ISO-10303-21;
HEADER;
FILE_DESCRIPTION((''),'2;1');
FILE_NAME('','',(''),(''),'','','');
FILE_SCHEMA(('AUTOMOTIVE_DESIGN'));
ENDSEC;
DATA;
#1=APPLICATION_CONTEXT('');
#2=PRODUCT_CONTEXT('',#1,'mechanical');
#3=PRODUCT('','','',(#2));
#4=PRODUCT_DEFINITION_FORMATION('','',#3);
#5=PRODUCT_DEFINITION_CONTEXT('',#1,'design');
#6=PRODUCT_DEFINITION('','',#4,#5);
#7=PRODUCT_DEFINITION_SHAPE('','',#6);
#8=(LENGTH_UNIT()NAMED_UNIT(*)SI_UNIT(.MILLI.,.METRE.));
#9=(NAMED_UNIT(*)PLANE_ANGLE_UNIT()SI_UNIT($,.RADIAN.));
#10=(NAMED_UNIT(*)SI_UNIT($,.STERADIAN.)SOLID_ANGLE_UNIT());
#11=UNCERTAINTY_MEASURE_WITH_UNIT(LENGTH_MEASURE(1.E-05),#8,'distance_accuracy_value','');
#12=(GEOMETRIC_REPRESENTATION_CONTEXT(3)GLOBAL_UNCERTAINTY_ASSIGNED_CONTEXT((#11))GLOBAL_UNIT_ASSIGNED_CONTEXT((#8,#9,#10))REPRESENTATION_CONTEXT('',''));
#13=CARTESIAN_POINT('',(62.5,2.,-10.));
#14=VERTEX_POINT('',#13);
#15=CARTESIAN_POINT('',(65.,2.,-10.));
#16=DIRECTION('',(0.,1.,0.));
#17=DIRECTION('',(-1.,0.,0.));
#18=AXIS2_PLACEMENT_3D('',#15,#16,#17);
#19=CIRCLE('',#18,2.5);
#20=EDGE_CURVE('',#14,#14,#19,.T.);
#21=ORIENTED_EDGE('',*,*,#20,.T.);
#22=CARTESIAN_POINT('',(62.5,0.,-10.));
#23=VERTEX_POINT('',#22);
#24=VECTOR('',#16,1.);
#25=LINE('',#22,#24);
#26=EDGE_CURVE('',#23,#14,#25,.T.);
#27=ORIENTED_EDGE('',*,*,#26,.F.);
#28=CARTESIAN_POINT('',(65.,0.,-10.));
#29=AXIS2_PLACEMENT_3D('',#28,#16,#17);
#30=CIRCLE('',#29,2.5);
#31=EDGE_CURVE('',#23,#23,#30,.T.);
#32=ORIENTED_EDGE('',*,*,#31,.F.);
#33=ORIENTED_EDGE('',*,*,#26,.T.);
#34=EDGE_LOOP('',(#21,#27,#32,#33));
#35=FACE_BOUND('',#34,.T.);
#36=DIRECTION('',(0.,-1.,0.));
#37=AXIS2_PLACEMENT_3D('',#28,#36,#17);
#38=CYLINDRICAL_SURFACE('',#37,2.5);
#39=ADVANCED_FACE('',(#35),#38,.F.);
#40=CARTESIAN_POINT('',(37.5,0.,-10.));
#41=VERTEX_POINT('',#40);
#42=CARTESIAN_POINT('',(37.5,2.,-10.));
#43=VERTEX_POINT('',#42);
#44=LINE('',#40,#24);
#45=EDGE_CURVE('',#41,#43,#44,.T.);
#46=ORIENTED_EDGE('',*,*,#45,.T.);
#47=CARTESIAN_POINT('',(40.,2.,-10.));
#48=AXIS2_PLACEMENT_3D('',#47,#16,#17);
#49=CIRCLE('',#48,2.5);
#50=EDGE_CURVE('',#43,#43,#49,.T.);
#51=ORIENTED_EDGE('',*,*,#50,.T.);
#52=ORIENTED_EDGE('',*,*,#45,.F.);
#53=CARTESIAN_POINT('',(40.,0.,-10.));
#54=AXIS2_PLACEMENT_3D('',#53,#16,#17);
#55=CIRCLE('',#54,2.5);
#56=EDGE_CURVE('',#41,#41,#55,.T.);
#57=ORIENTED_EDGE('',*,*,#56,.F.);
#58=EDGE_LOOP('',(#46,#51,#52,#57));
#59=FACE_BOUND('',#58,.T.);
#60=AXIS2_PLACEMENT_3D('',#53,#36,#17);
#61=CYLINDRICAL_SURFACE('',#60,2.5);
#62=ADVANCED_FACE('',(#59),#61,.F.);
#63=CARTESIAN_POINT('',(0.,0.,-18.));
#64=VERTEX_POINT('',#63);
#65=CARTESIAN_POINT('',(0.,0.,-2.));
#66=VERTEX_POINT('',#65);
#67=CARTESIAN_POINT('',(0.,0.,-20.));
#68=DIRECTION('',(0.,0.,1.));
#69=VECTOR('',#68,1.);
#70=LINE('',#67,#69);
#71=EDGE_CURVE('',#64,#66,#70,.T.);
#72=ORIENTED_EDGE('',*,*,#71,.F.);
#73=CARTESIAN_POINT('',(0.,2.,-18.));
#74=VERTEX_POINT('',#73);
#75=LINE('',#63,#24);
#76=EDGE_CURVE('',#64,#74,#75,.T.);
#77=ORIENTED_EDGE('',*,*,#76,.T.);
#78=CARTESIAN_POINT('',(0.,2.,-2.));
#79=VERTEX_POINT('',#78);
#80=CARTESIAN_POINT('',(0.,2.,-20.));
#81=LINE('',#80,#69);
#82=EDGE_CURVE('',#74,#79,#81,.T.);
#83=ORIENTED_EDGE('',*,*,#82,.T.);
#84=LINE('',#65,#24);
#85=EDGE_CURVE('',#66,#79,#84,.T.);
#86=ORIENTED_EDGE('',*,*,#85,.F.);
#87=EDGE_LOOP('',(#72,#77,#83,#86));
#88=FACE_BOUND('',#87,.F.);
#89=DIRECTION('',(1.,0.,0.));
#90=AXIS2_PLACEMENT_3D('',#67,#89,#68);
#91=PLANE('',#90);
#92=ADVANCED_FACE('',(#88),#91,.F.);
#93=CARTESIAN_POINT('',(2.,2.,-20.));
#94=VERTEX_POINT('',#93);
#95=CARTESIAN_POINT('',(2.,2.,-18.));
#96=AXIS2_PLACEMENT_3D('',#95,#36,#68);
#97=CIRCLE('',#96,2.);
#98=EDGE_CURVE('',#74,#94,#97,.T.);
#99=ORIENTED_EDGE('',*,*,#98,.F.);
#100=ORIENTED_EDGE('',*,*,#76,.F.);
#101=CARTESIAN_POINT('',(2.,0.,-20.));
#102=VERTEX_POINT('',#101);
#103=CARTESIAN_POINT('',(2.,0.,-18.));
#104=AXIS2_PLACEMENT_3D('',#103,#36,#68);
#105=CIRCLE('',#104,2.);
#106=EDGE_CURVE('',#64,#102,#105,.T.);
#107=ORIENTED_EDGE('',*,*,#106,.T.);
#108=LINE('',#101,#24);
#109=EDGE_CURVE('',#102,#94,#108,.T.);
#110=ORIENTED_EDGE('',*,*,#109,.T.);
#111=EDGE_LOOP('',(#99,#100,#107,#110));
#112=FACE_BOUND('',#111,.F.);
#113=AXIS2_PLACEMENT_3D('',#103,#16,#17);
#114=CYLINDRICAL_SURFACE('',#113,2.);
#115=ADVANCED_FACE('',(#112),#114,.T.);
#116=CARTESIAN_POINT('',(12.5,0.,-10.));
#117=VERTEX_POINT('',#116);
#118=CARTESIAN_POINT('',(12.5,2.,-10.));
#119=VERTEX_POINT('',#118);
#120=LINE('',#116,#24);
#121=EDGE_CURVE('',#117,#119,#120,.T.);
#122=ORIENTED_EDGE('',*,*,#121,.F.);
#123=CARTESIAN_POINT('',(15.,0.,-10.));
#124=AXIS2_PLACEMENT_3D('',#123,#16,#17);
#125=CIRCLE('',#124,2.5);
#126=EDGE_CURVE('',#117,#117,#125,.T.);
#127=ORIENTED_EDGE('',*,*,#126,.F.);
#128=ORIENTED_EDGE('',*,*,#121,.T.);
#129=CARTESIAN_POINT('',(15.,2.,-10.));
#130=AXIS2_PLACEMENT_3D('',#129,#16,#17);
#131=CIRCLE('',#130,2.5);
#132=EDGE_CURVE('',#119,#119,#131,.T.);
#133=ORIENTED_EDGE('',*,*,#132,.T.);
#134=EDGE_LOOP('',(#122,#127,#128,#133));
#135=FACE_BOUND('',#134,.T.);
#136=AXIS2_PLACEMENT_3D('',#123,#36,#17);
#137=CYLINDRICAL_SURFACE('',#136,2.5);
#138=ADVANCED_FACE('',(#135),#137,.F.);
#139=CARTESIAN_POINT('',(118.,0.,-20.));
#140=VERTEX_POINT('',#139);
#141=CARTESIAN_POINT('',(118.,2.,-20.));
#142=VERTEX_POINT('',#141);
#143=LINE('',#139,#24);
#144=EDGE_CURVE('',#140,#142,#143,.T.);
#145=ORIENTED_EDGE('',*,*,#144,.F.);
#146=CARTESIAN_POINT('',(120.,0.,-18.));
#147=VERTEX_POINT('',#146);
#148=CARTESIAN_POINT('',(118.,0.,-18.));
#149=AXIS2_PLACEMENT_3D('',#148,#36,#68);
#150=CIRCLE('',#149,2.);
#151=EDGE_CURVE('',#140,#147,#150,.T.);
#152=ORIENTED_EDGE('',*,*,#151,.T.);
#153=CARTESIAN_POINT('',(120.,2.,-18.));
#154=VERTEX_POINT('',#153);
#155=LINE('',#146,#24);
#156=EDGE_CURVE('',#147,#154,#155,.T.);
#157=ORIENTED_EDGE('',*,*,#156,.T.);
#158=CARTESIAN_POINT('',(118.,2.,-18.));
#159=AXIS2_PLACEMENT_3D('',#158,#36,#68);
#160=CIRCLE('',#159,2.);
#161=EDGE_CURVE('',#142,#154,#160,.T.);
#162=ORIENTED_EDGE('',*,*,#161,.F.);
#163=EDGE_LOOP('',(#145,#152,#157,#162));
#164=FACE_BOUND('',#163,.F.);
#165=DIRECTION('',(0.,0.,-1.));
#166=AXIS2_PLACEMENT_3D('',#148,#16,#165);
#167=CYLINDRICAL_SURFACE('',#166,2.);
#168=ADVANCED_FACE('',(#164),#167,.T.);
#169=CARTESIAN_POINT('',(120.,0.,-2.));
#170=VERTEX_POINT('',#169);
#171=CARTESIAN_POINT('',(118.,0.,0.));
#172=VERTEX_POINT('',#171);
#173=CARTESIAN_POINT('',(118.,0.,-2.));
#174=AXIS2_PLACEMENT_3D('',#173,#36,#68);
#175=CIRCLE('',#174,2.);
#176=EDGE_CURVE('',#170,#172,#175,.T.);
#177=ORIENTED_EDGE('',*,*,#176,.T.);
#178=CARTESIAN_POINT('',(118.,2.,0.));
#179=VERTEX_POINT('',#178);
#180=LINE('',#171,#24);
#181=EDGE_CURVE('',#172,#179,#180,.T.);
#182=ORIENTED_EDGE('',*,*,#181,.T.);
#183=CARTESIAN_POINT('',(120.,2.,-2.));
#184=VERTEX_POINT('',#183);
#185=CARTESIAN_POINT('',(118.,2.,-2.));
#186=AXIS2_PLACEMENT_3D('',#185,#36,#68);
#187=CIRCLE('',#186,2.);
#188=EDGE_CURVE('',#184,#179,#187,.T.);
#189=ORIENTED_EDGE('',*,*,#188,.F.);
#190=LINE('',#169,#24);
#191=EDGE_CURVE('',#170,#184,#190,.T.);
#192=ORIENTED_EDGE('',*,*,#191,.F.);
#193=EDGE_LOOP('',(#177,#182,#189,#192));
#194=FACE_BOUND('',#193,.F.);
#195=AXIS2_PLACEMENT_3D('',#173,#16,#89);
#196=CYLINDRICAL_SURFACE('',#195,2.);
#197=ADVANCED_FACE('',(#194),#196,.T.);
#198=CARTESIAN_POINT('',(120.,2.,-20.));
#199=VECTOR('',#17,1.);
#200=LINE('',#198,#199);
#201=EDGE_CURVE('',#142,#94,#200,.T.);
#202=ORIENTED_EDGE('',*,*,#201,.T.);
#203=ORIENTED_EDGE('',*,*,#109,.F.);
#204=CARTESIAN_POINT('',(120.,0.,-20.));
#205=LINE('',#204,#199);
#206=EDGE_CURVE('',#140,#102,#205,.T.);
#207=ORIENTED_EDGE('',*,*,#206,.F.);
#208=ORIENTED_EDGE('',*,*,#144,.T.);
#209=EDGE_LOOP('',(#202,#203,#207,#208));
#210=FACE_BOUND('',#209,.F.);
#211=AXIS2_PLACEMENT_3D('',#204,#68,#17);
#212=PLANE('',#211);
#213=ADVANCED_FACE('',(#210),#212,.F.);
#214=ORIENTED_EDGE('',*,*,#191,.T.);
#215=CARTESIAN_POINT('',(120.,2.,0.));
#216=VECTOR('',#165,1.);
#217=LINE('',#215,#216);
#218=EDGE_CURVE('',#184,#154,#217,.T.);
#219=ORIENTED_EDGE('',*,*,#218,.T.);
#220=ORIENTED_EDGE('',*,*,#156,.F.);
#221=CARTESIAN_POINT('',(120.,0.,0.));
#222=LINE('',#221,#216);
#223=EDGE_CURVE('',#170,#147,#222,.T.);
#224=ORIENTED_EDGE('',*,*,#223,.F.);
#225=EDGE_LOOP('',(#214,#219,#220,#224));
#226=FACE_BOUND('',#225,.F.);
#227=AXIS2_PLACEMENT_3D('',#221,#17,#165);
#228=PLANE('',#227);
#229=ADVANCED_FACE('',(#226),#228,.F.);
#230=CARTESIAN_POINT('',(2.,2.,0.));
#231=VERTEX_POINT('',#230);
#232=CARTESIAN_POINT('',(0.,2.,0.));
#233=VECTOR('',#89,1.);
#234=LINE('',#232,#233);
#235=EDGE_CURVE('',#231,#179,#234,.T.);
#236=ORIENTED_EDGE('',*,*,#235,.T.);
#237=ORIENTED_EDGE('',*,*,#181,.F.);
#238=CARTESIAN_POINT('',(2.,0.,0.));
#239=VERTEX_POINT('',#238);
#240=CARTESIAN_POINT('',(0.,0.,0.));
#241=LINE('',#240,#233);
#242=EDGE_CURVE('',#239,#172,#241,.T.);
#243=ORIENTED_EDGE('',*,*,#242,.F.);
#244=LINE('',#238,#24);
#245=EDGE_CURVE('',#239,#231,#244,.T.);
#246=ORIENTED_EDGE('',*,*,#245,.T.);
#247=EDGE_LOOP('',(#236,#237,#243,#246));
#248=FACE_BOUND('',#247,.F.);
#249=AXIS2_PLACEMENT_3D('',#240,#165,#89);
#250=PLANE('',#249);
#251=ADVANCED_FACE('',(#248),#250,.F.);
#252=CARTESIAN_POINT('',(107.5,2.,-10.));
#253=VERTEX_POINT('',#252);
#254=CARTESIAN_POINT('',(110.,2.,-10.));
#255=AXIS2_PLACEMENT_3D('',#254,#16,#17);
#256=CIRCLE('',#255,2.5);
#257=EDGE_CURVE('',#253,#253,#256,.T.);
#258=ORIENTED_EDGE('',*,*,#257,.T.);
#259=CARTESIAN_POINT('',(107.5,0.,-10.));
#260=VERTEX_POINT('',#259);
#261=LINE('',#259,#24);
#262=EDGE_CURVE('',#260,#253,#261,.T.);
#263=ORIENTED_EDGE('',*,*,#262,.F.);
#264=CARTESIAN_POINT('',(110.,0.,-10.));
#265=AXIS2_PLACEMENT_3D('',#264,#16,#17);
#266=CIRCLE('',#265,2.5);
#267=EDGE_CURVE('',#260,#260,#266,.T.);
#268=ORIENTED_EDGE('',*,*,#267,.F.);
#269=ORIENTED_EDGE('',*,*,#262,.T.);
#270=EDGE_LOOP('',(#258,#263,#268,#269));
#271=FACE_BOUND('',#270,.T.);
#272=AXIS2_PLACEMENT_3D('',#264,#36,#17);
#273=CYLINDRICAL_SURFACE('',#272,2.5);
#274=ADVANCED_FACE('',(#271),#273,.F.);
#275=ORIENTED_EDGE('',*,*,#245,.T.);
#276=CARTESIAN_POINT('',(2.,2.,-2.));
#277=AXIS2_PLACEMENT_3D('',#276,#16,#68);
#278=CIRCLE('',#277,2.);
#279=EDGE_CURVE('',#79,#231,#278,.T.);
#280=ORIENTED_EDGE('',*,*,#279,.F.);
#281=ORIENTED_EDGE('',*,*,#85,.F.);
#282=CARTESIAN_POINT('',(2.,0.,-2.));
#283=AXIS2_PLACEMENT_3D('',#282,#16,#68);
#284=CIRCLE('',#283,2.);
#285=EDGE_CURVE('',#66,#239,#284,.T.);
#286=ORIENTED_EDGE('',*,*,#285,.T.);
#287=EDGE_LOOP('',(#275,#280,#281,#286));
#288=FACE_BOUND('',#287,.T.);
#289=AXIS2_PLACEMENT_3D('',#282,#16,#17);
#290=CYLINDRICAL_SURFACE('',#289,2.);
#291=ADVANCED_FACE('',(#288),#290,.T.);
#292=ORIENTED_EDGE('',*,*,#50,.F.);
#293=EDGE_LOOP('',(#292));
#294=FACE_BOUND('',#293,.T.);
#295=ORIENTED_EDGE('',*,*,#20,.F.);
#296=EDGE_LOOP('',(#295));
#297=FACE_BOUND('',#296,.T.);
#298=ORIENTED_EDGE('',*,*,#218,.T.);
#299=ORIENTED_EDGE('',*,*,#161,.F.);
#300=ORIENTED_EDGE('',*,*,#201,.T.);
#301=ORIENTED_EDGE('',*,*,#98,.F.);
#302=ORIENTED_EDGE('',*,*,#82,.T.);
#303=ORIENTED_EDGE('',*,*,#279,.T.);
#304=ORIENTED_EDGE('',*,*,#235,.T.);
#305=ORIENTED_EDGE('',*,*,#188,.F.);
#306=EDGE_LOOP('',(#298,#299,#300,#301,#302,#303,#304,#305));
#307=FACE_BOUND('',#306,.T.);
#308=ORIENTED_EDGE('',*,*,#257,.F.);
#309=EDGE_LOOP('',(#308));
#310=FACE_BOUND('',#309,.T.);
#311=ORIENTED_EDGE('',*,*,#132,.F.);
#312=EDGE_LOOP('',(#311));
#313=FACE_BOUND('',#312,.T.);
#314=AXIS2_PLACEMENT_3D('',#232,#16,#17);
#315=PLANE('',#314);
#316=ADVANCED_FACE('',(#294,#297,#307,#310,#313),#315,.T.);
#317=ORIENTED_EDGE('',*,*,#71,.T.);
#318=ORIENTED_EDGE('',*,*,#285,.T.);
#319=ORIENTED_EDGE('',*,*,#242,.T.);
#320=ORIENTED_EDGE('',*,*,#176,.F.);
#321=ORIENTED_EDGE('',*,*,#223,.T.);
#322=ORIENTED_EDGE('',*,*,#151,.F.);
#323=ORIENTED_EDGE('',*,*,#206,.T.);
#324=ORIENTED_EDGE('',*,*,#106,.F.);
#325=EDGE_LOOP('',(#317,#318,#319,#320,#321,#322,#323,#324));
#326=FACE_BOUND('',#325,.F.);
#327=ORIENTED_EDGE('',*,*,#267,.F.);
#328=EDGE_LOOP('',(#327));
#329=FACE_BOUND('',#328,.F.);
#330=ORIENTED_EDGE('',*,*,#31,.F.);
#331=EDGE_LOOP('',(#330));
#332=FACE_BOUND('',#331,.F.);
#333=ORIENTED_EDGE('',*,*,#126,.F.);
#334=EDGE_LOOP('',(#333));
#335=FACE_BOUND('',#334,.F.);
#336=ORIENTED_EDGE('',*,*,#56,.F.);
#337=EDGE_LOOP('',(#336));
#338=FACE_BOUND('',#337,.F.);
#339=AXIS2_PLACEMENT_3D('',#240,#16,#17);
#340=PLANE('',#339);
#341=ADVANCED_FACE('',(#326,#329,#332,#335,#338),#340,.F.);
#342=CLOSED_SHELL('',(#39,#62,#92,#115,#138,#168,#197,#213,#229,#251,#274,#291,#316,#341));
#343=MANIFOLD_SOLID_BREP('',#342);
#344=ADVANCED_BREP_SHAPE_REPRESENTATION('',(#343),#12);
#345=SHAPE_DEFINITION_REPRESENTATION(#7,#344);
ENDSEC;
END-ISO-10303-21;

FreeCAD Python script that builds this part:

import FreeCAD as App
import Part
import Sketcher

V = App.Vector


def edges_at(feature, points):
    """Names of the edges that pass closest to the given points."""
    edges = feature.Shape.Edges
    near = lambda p: min(range(len(edges)), key=lambda i: edges[i].distToShape(Part.Vertex(*p))[0])
    return sorted({f"Edge{near(p) + 1}" for p in points})

doc = App.newDocument("Part")
params = doc.addObject("Spreadsheet::Sheet", "Params")
for row, (alias, value) in enumerate([
    ("sketch1_diameter", "5 mm"),
    ("sketch1_width", "120 mm"),
    ("sketch1_height", "20 mm"),
    ("pad1_length", "2 mm"),
    ("fillet_radius", "2 mm"),
], start=1):
    params.set(f"A{row}", alias)
    params.set(f"B{row}", "=" + value)
    params.setAlias(f"B{row}", alias)

body = doc.addObject("PartDesign::Body", "Body")

sketch1 = body.newObject("Sketcher::SketchObject", "Sketch")
sketch1.AttachmentSupport = (doc.getObject("XZ_Plane"), [""])
sketch1.MapMode = "FlatFace"
sketch1.addGeometry([
    Part.LineSegment(V(0, -20, 0), V(0, 0, 0)),
    Part.LineSegment(V(0, 0, 0), V(120, 0, 0)),
    Part.LineSegment(V(120, 0, 0), V(120, -20, 0)),
    Part.LineSegment(V(120, -20, 0), V(0, -20, 0)),
    Part.Circle(V(110, -10, 0), V(0, 0, 1), 2.5),
    Part.Circle(V(65, -10, 0), V(0, 0, 1), 2.5),
    Part.Circle(V(40, -10, 0), V(0, 0, 1), 2.5),
    Part.Circle(V(15, -10, 0), V(0, 0, 1), 2.5),
], False)
sketch1.addConstraint([
    Sketcher.Constraint("Coincident", 0, 2, 1, 1),
    Sketcher.Constraint("Coincident", 1, 2, 2, 1),
    Sketcher.Constraint("Coincident", 2, 2, 3, 1),
    Sketcher.Constraint("Coincident", 3, 2, 0, 1),
    Sketcher.Constraint("Vertical", 0),
    Sketcher.Constraint("Horizontal", 1),
    Sketcher.Constraint("Vertical", 2),
    Sketcher.Constraint("Horizontal", 3),
    Sketcher.Constraint("Coincident", 0, 2, -1, 1),
    Sketcher.Constraint("Equal", 4, 5),
    Sketcher.Constraint("Equal", 5, 6),
    Sketcher.Constraint("Equal", 6, 7),
    Sketcher.Constraint("Horizontal", 4, 3, 5, 3),
    Sketcher.Constraint("Horizontal", 5, 3, 6, 3),
    Sketcher.Constraint("Horizontal", 6, 3, 7, 3),
    Sketcher.Constraint("Diameter", 4, 5.0),
    Sketcher.Constraint("DistanceX", 1, 1, 1, 2, 120.0),
    Sketcher.Constraint("DistanceY", 0, 1, 0, 2, 20.0),
    Sketcher.Constraint("DistanceY", 4, 3, -1, 1, 10.0),
    Sketcher.Constraint("DistanceX", -1, 1, 7, 3, 15.0),
    Sketcher.Constraint("DistanceX", 6, 3, 5, 3, 25.0),
    Sketcher.Constraint("DistanceX", 7, 3, 6, 3, 25.0),
    Sketcher.Constraint("DistanceX", 4, 3, 1, 2, 10.0),
])
sketch1.setExpression("Constraints[15]", "Params.sketch1_diameter")
sketch1.setExpression("Constraints[16]", "Params.sketch1_width")
sketch1.setExpression("Constraints[17]", "Params.sketch1_height")
pad1 = body.newObject("PartDesign::Pad", "Pad")
pad1.Profile = sketch1
pad1.setExpression("Length", "Params.pad1_length")
pad1.Reversed = True
doc.recompute()

fillet = body.newObject("PartDesign::Fillet", "Fillet")
fillet.Base = (pad1, edges_at(pad1, [
    (0, 1, -20),
    (0, 1, 0),
    (120, 1, 0),
    (120, 1, -20),
]))
fillet.setExpression("Radius", "Params.fillet_radius")

doc.recompute()
